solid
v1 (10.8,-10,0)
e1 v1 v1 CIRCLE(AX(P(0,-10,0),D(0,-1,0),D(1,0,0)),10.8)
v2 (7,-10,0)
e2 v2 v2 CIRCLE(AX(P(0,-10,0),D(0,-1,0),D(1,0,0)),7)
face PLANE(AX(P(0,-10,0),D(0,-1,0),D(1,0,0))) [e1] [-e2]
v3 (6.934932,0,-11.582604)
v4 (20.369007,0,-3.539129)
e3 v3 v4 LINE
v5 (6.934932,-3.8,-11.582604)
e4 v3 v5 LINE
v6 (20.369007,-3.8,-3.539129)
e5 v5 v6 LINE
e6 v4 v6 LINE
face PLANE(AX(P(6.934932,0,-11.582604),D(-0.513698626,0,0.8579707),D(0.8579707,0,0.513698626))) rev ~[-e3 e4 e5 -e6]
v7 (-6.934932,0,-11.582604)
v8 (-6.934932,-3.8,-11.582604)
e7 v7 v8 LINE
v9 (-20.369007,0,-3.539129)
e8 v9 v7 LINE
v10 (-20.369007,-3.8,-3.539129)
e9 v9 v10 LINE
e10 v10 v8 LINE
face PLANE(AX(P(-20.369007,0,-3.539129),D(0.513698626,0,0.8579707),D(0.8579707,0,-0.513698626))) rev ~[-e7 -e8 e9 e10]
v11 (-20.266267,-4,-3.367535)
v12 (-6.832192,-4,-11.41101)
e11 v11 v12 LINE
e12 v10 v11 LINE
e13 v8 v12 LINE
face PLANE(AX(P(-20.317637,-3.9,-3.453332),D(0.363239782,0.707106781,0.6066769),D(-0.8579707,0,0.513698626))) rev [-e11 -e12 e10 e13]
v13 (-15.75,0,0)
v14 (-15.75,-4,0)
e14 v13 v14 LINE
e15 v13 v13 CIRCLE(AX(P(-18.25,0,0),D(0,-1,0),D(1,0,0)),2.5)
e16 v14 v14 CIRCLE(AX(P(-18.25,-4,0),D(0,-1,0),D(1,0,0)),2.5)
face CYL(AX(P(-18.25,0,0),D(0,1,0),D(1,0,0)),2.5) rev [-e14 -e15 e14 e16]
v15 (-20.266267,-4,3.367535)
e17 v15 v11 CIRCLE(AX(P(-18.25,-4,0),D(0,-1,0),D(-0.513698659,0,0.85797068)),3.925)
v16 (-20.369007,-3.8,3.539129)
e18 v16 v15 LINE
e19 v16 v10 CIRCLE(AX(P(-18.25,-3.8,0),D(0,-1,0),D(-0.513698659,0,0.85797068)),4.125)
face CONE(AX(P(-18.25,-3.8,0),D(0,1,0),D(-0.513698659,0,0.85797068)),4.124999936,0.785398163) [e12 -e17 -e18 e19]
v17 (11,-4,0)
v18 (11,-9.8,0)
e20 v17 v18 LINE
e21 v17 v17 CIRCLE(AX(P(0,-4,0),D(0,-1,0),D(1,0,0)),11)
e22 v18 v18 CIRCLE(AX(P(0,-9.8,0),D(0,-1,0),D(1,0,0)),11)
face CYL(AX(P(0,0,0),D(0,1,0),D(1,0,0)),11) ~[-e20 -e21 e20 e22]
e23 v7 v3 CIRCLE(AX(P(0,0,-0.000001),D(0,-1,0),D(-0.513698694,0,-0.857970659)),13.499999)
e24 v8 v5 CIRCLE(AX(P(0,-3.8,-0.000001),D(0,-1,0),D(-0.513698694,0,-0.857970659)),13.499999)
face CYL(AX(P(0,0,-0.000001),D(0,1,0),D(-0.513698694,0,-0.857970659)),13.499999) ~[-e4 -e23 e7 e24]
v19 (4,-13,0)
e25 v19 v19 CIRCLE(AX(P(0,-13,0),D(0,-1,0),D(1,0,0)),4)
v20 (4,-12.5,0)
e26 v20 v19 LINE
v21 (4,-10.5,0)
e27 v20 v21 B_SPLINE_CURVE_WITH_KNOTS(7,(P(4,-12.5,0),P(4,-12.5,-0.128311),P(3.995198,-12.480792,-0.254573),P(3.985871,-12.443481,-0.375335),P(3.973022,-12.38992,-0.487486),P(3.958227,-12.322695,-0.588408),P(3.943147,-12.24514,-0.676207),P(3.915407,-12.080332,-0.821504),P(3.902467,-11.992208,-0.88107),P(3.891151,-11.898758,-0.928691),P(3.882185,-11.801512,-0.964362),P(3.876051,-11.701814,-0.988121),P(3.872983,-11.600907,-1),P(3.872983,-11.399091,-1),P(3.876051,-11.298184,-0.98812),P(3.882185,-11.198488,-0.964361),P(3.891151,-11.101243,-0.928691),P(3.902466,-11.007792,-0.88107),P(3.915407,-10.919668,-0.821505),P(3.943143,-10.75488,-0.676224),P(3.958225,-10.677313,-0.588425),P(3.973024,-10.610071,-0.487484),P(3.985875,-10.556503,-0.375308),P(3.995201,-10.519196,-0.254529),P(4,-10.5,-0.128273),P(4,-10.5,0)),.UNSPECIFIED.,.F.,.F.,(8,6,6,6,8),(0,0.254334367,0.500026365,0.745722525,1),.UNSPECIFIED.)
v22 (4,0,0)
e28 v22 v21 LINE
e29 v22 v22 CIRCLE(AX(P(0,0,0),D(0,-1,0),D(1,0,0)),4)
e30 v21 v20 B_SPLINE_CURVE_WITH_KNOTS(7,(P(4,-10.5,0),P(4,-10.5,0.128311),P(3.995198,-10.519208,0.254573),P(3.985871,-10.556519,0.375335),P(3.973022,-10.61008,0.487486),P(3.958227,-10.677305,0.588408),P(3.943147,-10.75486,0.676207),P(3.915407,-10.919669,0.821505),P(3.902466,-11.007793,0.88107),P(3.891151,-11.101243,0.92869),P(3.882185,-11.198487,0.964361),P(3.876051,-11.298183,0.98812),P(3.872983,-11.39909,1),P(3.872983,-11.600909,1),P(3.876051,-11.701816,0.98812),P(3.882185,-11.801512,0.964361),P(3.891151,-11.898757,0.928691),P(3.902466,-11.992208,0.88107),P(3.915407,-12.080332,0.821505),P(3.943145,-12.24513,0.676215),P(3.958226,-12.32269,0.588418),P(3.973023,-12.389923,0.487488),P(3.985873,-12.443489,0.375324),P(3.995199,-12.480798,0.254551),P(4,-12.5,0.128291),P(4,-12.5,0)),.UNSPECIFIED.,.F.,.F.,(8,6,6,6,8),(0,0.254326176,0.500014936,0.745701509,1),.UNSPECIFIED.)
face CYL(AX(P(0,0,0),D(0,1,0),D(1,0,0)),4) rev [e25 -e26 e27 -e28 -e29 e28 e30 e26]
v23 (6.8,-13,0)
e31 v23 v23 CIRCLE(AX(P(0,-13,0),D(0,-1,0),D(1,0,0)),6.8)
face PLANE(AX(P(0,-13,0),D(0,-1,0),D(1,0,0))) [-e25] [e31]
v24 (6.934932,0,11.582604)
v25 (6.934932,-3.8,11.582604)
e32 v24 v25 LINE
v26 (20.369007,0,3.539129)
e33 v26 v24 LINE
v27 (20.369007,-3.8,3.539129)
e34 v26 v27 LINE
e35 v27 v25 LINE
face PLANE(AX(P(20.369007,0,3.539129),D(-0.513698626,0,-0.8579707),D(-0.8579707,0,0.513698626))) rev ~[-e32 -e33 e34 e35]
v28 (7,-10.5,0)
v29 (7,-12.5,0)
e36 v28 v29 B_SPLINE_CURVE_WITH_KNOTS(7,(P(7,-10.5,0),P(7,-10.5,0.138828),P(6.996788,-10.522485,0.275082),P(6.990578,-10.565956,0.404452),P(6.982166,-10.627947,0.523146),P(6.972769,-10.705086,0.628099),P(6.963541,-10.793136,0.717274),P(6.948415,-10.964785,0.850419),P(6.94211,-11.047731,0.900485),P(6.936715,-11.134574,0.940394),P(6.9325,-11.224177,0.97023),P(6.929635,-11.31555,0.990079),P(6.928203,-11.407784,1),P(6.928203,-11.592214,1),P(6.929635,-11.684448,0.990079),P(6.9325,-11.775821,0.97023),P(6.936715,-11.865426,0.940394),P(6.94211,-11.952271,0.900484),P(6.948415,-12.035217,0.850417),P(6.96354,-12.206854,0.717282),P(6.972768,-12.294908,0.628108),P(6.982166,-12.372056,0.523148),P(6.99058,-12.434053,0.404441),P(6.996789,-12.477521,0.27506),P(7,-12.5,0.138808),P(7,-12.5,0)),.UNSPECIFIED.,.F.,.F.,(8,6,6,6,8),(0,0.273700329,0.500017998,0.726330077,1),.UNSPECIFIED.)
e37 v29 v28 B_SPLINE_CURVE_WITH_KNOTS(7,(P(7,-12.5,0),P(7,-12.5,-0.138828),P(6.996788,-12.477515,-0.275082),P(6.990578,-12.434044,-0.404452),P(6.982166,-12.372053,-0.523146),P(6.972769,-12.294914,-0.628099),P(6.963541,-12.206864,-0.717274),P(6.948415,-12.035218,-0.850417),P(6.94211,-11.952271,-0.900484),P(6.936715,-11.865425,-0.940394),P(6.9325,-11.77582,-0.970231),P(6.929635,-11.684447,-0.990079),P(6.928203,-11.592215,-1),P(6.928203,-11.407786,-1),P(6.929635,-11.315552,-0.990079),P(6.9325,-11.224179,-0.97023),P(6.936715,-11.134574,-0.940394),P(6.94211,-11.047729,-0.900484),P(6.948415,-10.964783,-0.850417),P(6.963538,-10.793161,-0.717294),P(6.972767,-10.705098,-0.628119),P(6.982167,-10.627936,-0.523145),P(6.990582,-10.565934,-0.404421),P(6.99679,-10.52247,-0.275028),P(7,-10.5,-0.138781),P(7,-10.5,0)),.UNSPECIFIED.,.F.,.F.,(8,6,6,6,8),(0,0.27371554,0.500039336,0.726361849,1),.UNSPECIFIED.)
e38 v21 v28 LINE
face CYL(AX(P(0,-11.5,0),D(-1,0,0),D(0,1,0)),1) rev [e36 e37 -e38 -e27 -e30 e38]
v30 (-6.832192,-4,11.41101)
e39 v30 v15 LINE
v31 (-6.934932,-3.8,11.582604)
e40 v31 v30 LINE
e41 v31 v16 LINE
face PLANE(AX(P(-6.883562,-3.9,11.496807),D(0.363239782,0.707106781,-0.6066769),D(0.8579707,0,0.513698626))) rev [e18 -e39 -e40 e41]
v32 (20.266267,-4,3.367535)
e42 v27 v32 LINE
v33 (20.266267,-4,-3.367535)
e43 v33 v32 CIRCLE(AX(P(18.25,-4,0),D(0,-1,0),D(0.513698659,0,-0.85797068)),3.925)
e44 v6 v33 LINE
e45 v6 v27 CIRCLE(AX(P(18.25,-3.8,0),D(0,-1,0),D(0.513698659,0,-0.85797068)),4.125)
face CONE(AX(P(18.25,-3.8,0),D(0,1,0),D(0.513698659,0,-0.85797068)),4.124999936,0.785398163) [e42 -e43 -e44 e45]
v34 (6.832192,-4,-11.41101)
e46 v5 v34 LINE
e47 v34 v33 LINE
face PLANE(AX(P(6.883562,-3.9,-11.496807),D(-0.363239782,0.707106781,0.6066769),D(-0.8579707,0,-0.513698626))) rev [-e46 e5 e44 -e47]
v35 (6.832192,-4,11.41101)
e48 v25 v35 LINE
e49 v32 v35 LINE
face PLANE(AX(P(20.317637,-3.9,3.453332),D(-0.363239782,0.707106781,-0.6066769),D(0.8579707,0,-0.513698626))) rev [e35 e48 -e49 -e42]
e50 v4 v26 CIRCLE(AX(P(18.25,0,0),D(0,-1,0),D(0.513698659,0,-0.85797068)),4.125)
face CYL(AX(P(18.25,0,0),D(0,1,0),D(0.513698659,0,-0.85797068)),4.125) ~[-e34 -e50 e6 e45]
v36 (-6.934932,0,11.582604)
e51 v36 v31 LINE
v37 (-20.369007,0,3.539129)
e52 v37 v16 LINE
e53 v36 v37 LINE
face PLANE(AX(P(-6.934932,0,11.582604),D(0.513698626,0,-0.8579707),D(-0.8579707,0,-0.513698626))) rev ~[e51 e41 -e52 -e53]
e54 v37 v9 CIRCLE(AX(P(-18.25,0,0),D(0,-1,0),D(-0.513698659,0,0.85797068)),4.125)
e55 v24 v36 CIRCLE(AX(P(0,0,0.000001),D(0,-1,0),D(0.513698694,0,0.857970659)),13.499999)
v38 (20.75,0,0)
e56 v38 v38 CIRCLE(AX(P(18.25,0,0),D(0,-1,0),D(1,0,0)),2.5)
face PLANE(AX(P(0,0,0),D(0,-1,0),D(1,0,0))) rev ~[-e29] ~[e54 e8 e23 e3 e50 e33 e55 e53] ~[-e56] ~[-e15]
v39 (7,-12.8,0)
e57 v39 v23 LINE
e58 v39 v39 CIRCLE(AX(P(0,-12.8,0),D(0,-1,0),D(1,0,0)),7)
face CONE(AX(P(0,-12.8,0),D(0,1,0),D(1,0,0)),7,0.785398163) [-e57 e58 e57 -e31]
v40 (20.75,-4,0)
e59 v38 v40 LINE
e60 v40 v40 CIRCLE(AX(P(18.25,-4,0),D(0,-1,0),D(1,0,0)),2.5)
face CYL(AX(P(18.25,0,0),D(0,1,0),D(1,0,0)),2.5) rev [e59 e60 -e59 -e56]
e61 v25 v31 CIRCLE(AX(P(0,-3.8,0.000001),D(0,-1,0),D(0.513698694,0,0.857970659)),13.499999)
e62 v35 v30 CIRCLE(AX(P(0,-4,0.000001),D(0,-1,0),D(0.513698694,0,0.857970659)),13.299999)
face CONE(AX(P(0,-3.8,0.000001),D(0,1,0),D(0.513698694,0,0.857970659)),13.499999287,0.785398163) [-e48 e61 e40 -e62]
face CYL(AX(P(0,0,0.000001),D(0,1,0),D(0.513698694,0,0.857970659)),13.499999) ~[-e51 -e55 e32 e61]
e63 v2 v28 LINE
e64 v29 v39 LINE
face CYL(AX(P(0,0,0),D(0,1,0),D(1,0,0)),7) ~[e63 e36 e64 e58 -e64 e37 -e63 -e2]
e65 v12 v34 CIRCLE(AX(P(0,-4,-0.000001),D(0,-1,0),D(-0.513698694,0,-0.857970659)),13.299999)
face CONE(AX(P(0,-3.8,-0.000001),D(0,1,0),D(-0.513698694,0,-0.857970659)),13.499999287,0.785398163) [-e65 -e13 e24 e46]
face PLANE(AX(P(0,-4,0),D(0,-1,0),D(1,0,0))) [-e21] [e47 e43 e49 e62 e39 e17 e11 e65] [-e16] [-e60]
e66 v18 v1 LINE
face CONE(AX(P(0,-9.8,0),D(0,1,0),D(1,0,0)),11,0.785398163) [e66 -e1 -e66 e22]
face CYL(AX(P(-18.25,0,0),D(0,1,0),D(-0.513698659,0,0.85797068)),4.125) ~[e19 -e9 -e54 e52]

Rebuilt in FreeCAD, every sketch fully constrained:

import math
import FreeCAD as App
import Part
import Sketcher
from FreeCAD import Vector


def edges_at(feature, points):
    """Names of the edges that pass closest to the given points."""
    edges = feature.Shape.Edges
    near = lambda p: min(range(len(edges)), key=lambda i: edges[i].distToShape(Part.Vertex(*p))[0])
    return sorted({f"Edge{near(p) + 1}" for p in points})

doc = App.newDocument("Part")
params = doc.addObject("Spreadsheet::Sheet", "Params")
for row, (alias, value) in enumerate([
    ("sketch1_diameter", "5 mm"),
    ("sketch1_diameter2", "22 mm"),
    ("sketch1_radius", "13.499999 mm"),
    ("pad1_length", "4 mm"),
    ("sketch2_diameter", "14 mm"),
    ("sketch2_diameter2", "8 mm"),
    ("pad2_length", "13 mm"),
    ("sketch3_diameter", "22 mm"),
    ("sketch3_diameter2", "14 mm"),
    ("pad3_length", "10 mm"),
    ("sketch4_diameter", "2 mm"),
    ("pocket1_length", "8 mm"),
    ("chamfer_size", "0.2 mm"),
    ("chamfer2_size", "0.2 mm"),
    ("chamfer3_size", "0.2 mm"),
], start=1):
    params.set(f"A{row}", alias)
    params.set(f"B{row}", "=" + value)
    params.setAlias(f"B{row}", alias)

body = doc.addObject("PartDesign::Body", "Body")

# Sketch on XZ plane
sketch1 = body.newObject("Sketcher::SketchObject", "Sketch")
sketch1.AttachmentSupport = (doc.getObject("XZ_Plane"), [""])
sketch1.MapMode = "FlatFace"
sketch1.addGeometry([
    Part.LineSegment(Vector(-20.369007, -3.539129, 0), Vector(-6.934932, -11.582604, 0)),  # 0
    Part.ArcOfCircle(Part.Circle(Vector(0, -0.000001, 0), Vector(0, 0, 1), 13.499999), math.radians(-120.910513), math.radians(-59.089487)),  # 1
    Part.LineSegment(Vector(6.934932, -11.582604, 0), Vector(20.369007, -3.539129, 0)),  # 2
    Part.ArcOfCircle(Part.Circle(Vector(18.25, 0, 0), Vector(0, 0, 1), 4.125), math.radians(-59.089489), math.radians(59.089489)),  # 3
    Part.LineSegment(Vector(20.369007, 3.539129, 0), Vector(6.934932, 11.582604, 0)),  # 4
    Part.ArcOfCircle(Part.Circle(Vector(0, 0.000001, 0), Vector(0, 0, 1), 13.499999), math.radians(59.089487), math.radians(120.910513)),  # 5
    Part.LineSegment(Vector(-6.934932, 11.582604, 0), Vector(-20.369007, 3.539129, 0)),  # 6
    Part.ArcOfCircle(Part.Circle(Vector(-18.25, 0, 0), Vector(0, 0, 1), 4.125), math.radians(120.910511), math.radians(239.089489)),  # 7
    Part.Circle(Vector(-18.25, 0, 0), Vector(0, 0, 1), 2.5),  # 8
    Part.Circle(Vector(0, 0, 0), Vector(0, 0, 1), 11),  # 9
    Part.Circle(Vector(18.25, 0, 0), Vector(0, 0, 1), 2.5),  # 10
], False)
sketch1.addConstraint([
    Sketcher.Constraint("Tangent", 0, 2, 1, 1),
    Sketcher.Constraint("Tangent", 1, 2, 2, 1),
    Sketcher.Constraint("Tangent", 2, 2, 3, 1),
    Sketcher.Constraint("Tangent", 3, 2, 4, 1),
    Sketcher.Constraint("Tangent", 4, 2, 5, 1),
    Sketcher.Constraint("Tangent", 5, 2, 6, 1),
    Sketcher.Constraint("Tangent", 6, 2, 7, 1),
    Sketcher.Constraint("Tangent", 7, 2, 0, 1),
    Sketcher.Constraint("Coincident", 1, 3, -1, 1),
    Sketcher.Constraint("Coincident", 5, 3, -1, 1),
    Sketcher.Constraint("Coincident", 9, 3, -1, 1),
    Sketcher.Constraint("Coincident", 8, 3, 7, 3),
    Sketcher.Constraint("Coincident", 10, 3, 3, 3),
    Sketcher.Constraint("Equal", 1, 5),
    Sketcher.Constraint("Equal", 3, 7),
    Sketcher.Constraint("Equal", 8, 10),
    Sketcher.Constraint("Symmetric", 3, 3, 7, 3, -1, 1),
    Sketcher.Constraint("PointOnObject", 3, 3, -1),
    Sketcher.Constraint("Diameter", 8, 5.0),
    Sketcher.Constraint("Diameter", 9, 22.0),
    Sketcher.Constraint("Radius", 1, 13.499999),
    Sketcher.Constraint("Radius", 3, 4.125),
    Sketcher.Constraint("DistanceX", 7, 3, 3, 3, 36.5),
])
sketch1.setExpression("Constraints[18]", "Params.sketch1_diameter")
sketch1.setExpression("Constraints[19]", "Params.sketch1_diameter2")
sketch1.setExpression("Constraints[20]", "Params.sketch1_radius")
pad1 = body.newObject("PartDesign::Pad", "Pad")
pad1.Profile = sketch1
pad1.setExpression("Length", "Params.pad1_length")
body2 = doc.addObject("PartDesign::Body", "Body001")

# Sketch on XZ plane
sketch2 = body2.newObject("Sketcher::SketchObject", "Sketch001")
sketch2.AttachmentSupport = (doc.getObject("XZ_Plane001"), [""])
sketch2.MapMode = "FlatFace"
sketch2.addGeometry([
    Part.Circle(Vector(0, 0, 0), Vector(0, 0, 1), 7),
    Part.Circle(Vector(0, 0, 0), Vector(0, 0, 1), 4),
], False)
sketch2.addConstraint([
    Sketcher.Constraint("Coincident", 0, 3, -1, 1),
    Sketcher.Constraint("Coincident", 1, 3, -1, 1),
    Sketcher.Constraint("Diameter", 0, 14.0),
    Sketcher.Constraint("Diameter", 1, 8.0),
])
sketch2.setExpression("Constraints[2]", "Params.sketch2_diameter")
sketch2.setExpression("Constraints[3]", "Params.sketch2_diameter2")
pad2 = body2.newObject("PartDesign::Pad", "Pad001")
pad2.Profile = sketch2
pad2.setExpression("Length", "Params.pad2_length")
body.AllowCompound = True
doc.recompute()

boolean = body.newObject("PartDesign::Boolean", "Boolean")
boolean.Type = "Fuse"
boolean.addObjects([body2])

# Sketch on XZ plane
sketch3 = body.newObject("Sketcher::SketchObject", "Sketch002")
sketch3.AttachmentSupport = (doc.getObject("XZ_Plane"), [""])
sketch3.MapMode = "FlatFace"
sketch3.addGeometry([
    Part.Circle(Vector(0, 0, 0), Vector(0, 0, 1), 11),
    Part.Circle(Vector(0, 0, 0), Vector(0, 0, 1), 7),
], False)
sketch3.addConstraint([
    Sketcher.Constraint("Coincident", 0, 3, -1, 1),
    Sketcher.Constraint("Coincident", 1, 3, -1, 1),
    Sketcher.Constraint("Diameter", 0, 22.0),
    Sketcher.Constraint("Diameter", 1, 14.0),
])
sketch3.setExpression("Constraints[2]", "Params.sketch3_diameter")
sketch3.setExpression("Constraints[3]", "Params.sketch3_diameter2")
pad3 = body.newObject("PartDesign::Pad", "Pad002")
pad3.Profile = sketch3
pad3.setExpression("Length", "Params.pad3_length")

# Sketch on YZ plane
sketch4 = body.newObject("Sketcher::SketchObject", "Sketch003")
sketch4.AttachmentSupport = (doc.getObject("YZ_Plane"), [""])
sketch4.MapMode = "FlatFace"
sketch4.addGeometry(Part.Circle(Vector(-11.5, 0, 0), Vector(0, 0, 1), 1), False)
sketch4.addConstraint([
    Sketcher.Constraint("PointOnObject", 0, 3, -1),
    Sketcher.Constraint("Diameter", 0, 2.0),
    Sketcher.Constraint("DistanceX", 0, 3, -1, 1, 11.5),
])
sketch4.setExpression("Constraints[1]", "Params.sketch4_diameter")
pocket1 = body.newObject("PartDesign::Pocket", "Pocket")
pocket1.Profile = sketch4
pocket1.setExpression("Length", "Params.pocket1_length")
pocket1.Reversed = True
doc.recompute()

chamfer = body.newObject("PartDesign::Chamfer", "Chamfer")
chamfer.Base = (pocket1, edges_at(pocket1, [(-11, -10, 0)]))
chamfer.setExpression("Size", "Params.chamfer_size")
doc.recompute()

chamfer2 = body.newObject("PartDesign::Chamfer", "Chamfer001")
chamfer2.Base = (chamfer, edges_at(chamfer, [(-7, -13, 0)]))
chamfer2.setExpression("Size", "Params.chamfer2_size")
doc.recompute()

chamfer3 = body.newObject("PartDesign::Chamfer", "Chamfer002")
chamfer3.Base = (chamfer2, edges_at(chamfer2, [
    (13.652, -4, -7.561),
    (13.652, -4, 7.561),
    (22.375, -4, 0),
    (0, -4, -13.5),
    (0, -4, 13.5),
    (-13.652, -4, 7.561),
    (-13.652, -4, -7.561),
    (-22.375, -4, 0),
]))
chamfer3.setExpression("Size", "Params.chamfer3_size")

doc.recompute()
